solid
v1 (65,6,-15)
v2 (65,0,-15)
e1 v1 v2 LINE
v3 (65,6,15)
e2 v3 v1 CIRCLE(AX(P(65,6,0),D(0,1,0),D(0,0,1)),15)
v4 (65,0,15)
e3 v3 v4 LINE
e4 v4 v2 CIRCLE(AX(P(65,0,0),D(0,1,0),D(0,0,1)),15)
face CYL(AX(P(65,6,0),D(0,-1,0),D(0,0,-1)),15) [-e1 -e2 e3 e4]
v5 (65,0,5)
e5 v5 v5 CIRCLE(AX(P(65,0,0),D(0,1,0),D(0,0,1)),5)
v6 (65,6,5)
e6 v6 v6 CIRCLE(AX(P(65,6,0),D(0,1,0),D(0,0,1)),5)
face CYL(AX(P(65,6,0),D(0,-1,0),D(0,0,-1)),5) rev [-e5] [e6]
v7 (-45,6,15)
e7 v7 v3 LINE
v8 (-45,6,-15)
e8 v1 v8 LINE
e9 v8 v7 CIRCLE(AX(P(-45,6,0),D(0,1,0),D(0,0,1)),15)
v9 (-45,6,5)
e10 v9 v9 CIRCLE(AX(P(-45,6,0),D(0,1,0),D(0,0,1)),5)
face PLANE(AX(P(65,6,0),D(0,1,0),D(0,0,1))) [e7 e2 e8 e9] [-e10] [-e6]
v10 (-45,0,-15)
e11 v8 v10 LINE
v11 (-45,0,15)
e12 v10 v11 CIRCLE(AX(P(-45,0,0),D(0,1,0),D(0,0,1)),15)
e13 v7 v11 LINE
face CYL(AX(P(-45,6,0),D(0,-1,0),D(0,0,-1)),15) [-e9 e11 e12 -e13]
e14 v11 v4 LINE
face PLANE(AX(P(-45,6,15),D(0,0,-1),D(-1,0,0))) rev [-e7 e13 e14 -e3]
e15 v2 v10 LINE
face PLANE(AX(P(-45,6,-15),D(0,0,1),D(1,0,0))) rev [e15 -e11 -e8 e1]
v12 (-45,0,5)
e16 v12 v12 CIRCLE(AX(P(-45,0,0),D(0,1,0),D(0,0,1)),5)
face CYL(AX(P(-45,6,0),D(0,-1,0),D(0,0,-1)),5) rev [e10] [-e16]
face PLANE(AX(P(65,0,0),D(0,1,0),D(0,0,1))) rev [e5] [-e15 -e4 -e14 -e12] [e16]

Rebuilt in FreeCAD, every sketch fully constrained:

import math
import FreeCAD as App
import Part
import Sketcher
from FreeCAD import Vector

doc = App.newDocument("Part")
body = doc.addObject("PartDesign::Body", "Body")

# Sketch on XZ plane
sketch1 = doc.addObject("Sketcher::SketchObject", "Sketch")
body.addObject(sketch1)
sketch1.AttachmentSupport = (doc.XZ_Plane, [""])
sketch1.MapMode = "FlatFace"
sketch1.addGeometry([
    Part.LineSegment(Vector(65, -15, 0), Vector(-45, -15, 0)),  # 0
    Part.ArcOfCircle(Part.Circle(Vector(-45, 0, 0), Vector(0, 0, 1), 15), math.radians(90), math.radians(270)),  # 1
    Part.LineSegment(Vector(-45, 15, 0), Vector(65, 15, 0)),  # 2
    Part.ArcOfCircle(Part.Circle(Vector(65, 0, 0), Vector(0, 0, 1), 15), math.radians(-90), math.radians(90)),  # 3
    Part.Circle(Vector(65, 0, 0), Vector(0, 0, 1), 5),  # 4
    Part.Circle(Vector(-45, 0, 0), Vector(0, 0, 1), 5),  # 5
], False)
sketch1.addConstraint([
    Sketcher.Constraint("Tangent", 0, 2, 1, 2),
    Sketcher.Constraint("Tangent", 1, 1, 2, 1),
    Sketcher.Constraint("Tangent", 2, 2, 3, 2),
    Sketcher.Constraint("Tangent", 3, 1, 0, 1),
    Sketcher.Constraint("Horizontal", 0),
    Sketcher.Constraint("Horizontal", 2),
    Sketcher.Constraint("Coincident", 4, 3, 3, 3),
    Sketcher.Constraint("Coincident", 5, 3, 1, 3),
    Sketcher.Constraint("Equal", 4, 5),
    Sketcher.Constraint("PointOnObject", 1, 3, -1),
    Sketcher.Constraint("Diameter", 4, 10.0),
    Sketcher.Constraint("Radius", 1, 15.0),
    Sketcher.Constraint("DistanceX", 0, 2, 0, 1, 110.0),
    Sketcher.Constraint("DistanceX", 1, 3, -1, 1, 45.0),
])
pad1 = doc.addObject("PartDesign::Pad", "Pad")
body.addObject(pad1)
pad1.Profile = sketch1
pad1.Length = 6
pad1.Reversed = True

doc.recompute()
